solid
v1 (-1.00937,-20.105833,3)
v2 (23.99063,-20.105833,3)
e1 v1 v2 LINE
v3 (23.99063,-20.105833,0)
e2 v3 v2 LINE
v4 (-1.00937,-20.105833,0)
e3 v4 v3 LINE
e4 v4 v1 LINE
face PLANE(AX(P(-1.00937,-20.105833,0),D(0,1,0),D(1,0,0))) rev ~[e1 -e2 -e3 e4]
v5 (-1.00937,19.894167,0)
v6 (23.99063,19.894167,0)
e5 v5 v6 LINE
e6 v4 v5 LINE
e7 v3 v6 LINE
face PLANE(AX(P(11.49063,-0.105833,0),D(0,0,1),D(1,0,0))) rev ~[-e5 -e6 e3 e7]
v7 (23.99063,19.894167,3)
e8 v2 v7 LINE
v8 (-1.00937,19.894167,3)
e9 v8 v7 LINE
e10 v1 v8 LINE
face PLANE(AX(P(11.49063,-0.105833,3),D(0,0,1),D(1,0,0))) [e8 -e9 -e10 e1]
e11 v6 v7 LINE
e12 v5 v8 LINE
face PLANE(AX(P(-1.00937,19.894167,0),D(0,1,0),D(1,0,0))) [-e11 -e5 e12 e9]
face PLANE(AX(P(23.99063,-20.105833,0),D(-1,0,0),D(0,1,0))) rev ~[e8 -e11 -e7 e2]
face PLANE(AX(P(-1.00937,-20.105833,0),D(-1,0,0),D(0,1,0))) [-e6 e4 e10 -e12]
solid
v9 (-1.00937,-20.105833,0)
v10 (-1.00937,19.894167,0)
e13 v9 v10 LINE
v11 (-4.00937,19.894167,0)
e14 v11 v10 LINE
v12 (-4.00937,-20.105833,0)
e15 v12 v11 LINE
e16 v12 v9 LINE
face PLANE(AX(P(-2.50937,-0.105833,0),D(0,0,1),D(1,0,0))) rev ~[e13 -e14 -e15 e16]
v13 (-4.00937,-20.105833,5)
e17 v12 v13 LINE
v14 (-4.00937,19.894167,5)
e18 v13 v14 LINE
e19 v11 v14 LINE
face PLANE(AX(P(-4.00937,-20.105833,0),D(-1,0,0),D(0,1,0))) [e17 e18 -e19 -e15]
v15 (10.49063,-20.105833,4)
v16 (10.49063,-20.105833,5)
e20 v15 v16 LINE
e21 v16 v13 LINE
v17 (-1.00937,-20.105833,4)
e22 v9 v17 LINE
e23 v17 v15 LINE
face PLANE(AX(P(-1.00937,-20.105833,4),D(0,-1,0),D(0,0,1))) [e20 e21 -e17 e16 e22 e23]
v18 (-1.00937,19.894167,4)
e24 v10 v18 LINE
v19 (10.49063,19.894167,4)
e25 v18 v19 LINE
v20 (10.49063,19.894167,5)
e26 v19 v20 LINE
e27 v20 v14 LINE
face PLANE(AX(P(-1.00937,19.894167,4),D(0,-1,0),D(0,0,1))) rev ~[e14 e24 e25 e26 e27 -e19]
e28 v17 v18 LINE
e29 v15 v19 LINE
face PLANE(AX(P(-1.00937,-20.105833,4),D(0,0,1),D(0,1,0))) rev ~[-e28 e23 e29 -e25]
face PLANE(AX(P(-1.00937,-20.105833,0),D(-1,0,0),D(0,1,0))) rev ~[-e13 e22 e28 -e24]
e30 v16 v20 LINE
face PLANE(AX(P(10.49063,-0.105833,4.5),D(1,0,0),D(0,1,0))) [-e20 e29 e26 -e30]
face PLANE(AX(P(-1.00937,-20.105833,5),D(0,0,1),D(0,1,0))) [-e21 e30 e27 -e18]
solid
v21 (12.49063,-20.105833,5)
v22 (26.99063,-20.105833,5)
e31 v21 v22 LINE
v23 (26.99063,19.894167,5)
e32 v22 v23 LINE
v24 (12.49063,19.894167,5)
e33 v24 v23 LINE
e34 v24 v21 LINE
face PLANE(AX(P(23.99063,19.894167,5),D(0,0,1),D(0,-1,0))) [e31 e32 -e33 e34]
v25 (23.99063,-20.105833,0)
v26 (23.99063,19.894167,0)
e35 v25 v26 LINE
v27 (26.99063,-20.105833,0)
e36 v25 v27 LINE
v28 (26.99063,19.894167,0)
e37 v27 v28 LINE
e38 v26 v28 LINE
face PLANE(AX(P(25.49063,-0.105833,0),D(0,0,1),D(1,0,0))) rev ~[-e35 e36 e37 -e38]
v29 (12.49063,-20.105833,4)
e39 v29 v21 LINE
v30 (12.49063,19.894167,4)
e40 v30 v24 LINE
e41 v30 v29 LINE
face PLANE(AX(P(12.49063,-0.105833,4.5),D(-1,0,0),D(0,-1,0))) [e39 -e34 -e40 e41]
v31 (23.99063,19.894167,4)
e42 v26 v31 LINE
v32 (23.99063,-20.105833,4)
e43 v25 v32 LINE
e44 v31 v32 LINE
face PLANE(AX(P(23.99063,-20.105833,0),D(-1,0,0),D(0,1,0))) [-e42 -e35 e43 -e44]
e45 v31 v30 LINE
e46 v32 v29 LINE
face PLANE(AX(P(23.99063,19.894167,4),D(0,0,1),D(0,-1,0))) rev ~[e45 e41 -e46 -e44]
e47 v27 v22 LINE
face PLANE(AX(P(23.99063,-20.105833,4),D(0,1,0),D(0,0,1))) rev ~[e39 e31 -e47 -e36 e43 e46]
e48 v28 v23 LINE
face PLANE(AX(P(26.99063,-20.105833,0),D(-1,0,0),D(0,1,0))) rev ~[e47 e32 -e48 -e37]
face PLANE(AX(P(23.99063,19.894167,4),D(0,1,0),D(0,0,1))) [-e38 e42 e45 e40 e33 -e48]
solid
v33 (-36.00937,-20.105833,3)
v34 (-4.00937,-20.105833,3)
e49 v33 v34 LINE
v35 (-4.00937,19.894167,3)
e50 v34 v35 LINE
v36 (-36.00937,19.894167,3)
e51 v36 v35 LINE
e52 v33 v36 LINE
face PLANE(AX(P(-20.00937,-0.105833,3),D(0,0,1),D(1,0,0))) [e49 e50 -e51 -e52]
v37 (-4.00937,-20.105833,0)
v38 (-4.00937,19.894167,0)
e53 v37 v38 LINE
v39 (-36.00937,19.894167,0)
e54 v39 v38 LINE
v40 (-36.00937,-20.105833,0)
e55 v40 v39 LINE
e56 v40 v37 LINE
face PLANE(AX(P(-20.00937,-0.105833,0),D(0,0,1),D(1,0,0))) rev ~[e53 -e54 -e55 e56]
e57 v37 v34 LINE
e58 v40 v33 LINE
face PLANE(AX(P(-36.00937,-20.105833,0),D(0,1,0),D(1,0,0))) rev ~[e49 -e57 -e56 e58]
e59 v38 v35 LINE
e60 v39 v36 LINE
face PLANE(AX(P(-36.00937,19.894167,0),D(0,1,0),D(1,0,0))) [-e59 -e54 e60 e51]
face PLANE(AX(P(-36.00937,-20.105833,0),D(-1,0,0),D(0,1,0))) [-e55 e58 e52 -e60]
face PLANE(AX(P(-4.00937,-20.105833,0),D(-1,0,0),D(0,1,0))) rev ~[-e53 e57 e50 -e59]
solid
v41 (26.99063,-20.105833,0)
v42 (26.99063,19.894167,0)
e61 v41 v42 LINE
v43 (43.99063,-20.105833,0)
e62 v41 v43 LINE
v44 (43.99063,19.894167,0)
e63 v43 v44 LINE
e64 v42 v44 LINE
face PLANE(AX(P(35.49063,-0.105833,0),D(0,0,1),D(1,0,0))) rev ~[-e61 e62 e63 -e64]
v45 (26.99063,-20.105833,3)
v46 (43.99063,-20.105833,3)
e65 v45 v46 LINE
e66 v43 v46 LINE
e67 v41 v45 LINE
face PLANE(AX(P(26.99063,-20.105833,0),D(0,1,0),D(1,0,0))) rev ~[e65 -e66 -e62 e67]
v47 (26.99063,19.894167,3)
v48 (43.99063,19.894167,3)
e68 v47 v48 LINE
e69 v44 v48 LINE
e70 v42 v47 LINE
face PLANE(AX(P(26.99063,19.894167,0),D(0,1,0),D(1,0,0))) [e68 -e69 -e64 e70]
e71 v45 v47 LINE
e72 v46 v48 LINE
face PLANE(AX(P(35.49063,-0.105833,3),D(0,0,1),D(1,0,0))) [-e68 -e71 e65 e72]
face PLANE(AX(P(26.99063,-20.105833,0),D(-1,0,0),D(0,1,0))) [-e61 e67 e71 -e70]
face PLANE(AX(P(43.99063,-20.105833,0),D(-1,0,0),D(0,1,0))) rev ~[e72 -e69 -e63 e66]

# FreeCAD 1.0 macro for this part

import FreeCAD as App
import Part
import Sketcher
from FreeCAD import Vector


def add_polygon(sketch, points):
    """Adds a closed chain of lines whose ends are joined by coincident constraints."""
    first, n = sketch.GeometryCount, len(points)
    for a, b in zip(points, points[1:] + points[:1]):
        sketch.addGeometry(Part.LineSegment(App.Vector(*a, 0), App.Vector(*b, 0)), False)
    for i in range(n):
        sketch.addConstraint(Sketcher.Constraint("Coincident", first + i, 2, first + (i + 1) % n, 1))

doc = App.newDocument("Part")
body = doc.addObject("PartDesign::Body", "Body")
body.AllowCompound = True

# Sketch on XY plane
sketch1 = body.newObject("Sketcher::SketchObject", "Sketch")
sketch1.AttachmentSupport = (doc.getObject("XY_Plane"), [""])
sketch1.MapMode = "FlatFace"
add_polygon(sketch1, [(-36.00937, 19.894167), (-36.00937, -20.105833), (-4.00937, -20.105833), (-4.00937, 19.894167)])  # lines 0-3
add_polygon(sketch1, [(-1.00937, 19.894167), (-1.00937, -20.105833), (23.99063, -20.105833), (23.99063, 19.894167)])  # lines 4-7
add_polygon(sketch1, [(26.99063, 19.894167), (26.99063, -20.105833), (43.99063, -20.105833), (43.99063, 19.894167)])  # lines 8-11
sketch1.addConstraint([
    Sketcher.Constraint("Vertical", 0),
    Sketcher.Constraint("Horizontal", 1),
    Sketcher.Constraint("Vertical", 2),
    Sketcher.Constraint("Horizontal", 3),
    Sketcher.Constraint("Vertical", 4),
    Sketcher.Constraint("Horizontal", 5),
    Sketcher.Constraint("Vertical", 6),
    Sketcher.Constraint("Horizontal", 7),
    Sketcher.Constraint("Vertical", 8),
    Sketcher.Constraint("Horizontal", 9),
    Sketcher.Constraint("Vertical", 10),
    Sketcher.Constraint("Horizontal", 11),
    Sketcher.Constraint("Horizontal", 1, 2, 4, 2),
    Sketcher.Constraint("Horizontal", 3, 2, 6, 2),
    Sketcher.Constraint("Horizontal", 5, 2, 8, 2),
    Sketcher.Constraint("Horizontal", 7, 2, 10, 2),
    Sketcher.Constraint("DistanceX", 1, 1, 1, 2, 32.0),
    Sketcher.Constraint("DistanceX", 5, 1, 5, 2, 25.0),
    Sketcher.Constraint("DistanceX", 9, 1, 9, 2, 17.0),
    Sketcher.Constraint("DistanceY", 0, 2, 0, 1, 40.0),
    Sketcher.Constraint("DistanceX", 1, 2, 4, 2, 3.0),
    Sketcher.Constraint("DistanceX", 5, 2, 8, 2, 3.0),
    Sketcher.Constraint("DistanceX", 0, 2, -1, 1, 36.00937),
    Sketcher.Constraint("DistanceY", 0, 2, -1, 1, 20.105833),
])
pad1 = body.newObject("PartDesign::Pad", "Pad")
pad1.Profile = sketch1
pad1.Length = 3
body2 = doc.addObject("PartDesign::Body", "Body001")
body2.AllowCompound = True

# Sketch on XY plane
sketch2 = body2.newObject("Sketcher::SketchObject", "Sketch001")
sketch2.AttachmentSupport = (doc.getObject("XY_Plane001"), [""])
sketch2.MapMode = "FlatFace"
add_polygon(sketch2, [(-4.00937, 19.894167), (-4.00937, -20.105833), (-1.00937, -20.105833), (-1.00937, 19.894167)])  # lines 0-3
add_polygon(sketch2, [(23.99063, 19.894167), (23.99063, -20.105833), (26.99063, -20.105833), (26.99063, 19.894167)])  # lines 4-7
sketch2.addConstraint([
    Sketcher.Constraint("Vertical", 0),
    Sketcher.Constraint("Horizontal", 1),
    Sketcher.Constraint("Vertical", 2),
    Sketcher.Constraint("Horizontal", 3),
    Sketcher.Constraint("Vertical", 4),
    Sketcher.Constraint("Horizontal", 5),
    Sketcher.Constraint("Vertical", 6),
    Sketcher.Constraint("Horizontal", 7),
    Sketcher.Constraint("Horizontal", 1, 2, 4, 2),
    Sketcher.Constraint("Horizontal", 3, 2, 6, 2),
    Sketcher.Constraint("Equal", 3, 5),
    Sketcher.Constraint("DistanceX", 1, 1, 1, 2, 3.0),
    Sketcher.Constraint("DistanceY", 0, 2, 0, 1, 40.0),
    Sketcher.Constraint("DistanceX", 1, 2, 4, 2, 25.0),
    Sketcher.Constraint("DistanceX", 0, 2, -1, 1, 4.00937),
    Sketcher.Constraint("DistanceY", 0, 2, -1, 1, 20.105833),
])
pad2 = body2.newObject("PartDesign::Pad", "Pad001")
pad2.Profile = sketch2
pad2.Length = 5

# Sketch on YZ plane
sketch3 = body2.newObject("Sketcher::SketchObject", "Sketch002")
sketch3.AttachmentSupport = (doc.getObject("YZ_Plane001"), [""])
sketch3.MapMode = "FlatFace"
sketch3.AttachmentOffset = App.Placement(Vector(0, 0, -1.00937), App.Rotation())
add_polygon(sketch3, [(-20.105833, 5), (-20.105833, 4), (19.894167, 4), (19.894167, 5)])  # lines 0-3
sketch3.addConstraint([
    Sketcher.Constraint("Vertical", 0),
    Sketcher.Constraint("Horizontal", 1),
    Sketcher.Constraint("Vertical", 2),
    Sketcher.Constraint("Horizontal", 3),
    Sketcher.Constraint("DistanceX", 1, 1, 1, 2, 40.0),
    Sketcher.Constraint("DistanceY", 0, 2, 0, 1, 1.0),
    Sketcher.Constraint("DistanceY", -1, 1, 0, 2, 4.0),
    Sketcher.Constraint("DistanceX", 0, 2, -1, 1, 20.105833),
])
pad3 = body2.newObject("PartDesign::Pad", "Pad002")
pad3.Profile = sketch3
pad3.Length = 11.5

# Sketch on YZ plane
sketch4 = body2.newObject("Sketcher::SketchObject", "Sketch003")
sketch4.AttachmentSupport = (doc.getObject("YZ_Plane001"), [""])
sketch4.MapMode = "FlatFace"
sketch4.AttachmentOffset = App.Placement(Vector(0, 0, 23.99063), App.Rotation())
add_polygon(sketch4, [(19.894167, 5), (19.894167, 4), (-20.105833, 4), (-20.105833, 5)])  # lines 0-3
sketch4.addConstraint([
    Sketcher.Constraint("Vertical", 0),
    Sketcher.Constraint("Horizontal", 1),
    Sketcher.Constraint("Vertical", 2),
    Sketcher.Constraint("Horizontal", 3),
    Sketcher.Constraint("DistanceX", 1, 2, 1, 1, 40.0),
    Sketcher.Constraint("DistanceY", 0, 2, 0, 1, 1.0),
    Sketcher.Constraint("DistanceY", -1, 1, 0, 2, 4.0),
    Sketcher.Constraint("DistanceX", -1, 1, 0, 2, 19.894167),
])
pad4 = body2.newObject("PartDesign::Pad", "Pad003")
pad4.Profile = sketch4
pad4.Length = 11.5
pad4.Reversed = True

doc.recompute()
